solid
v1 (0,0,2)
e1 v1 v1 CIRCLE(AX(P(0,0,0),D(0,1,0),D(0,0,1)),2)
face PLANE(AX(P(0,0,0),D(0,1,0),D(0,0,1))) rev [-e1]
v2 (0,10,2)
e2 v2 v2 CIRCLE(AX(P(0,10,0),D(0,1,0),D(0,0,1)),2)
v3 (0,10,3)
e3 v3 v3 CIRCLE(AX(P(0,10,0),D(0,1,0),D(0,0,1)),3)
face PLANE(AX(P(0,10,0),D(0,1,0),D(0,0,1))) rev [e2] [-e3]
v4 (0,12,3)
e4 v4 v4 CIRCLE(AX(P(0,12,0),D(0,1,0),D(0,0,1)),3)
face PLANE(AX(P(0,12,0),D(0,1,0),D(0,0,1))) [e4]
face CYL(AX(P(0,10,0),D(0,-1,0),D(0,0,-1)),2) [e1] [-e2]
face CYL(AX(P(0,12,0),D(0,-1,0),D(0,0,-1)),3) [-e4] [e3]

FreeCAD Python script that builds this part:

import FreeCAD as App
import Part
import Sketcher
from FreeCAD import Vector

doc = App.newDocument("Part")
params = doc.addObject("Spreadsheet::Sheet", "Params")
for row, (alias, value) in enumerate([
    ("sketch1_diameter", "4 mm"),
    ("pad1_length", "10 mm"),
    ("sketch2_diameter", "6 mm"),
    ("pad2_length", "2 mm"),
], start=1):
    params.set(f"A{row}", alias)
    params.set(f"B{row}", "=" + value)
    params.setAlias(f"B{row}", alias)

body = doc.addObject("PartDesign::Body", "Body")

# Sketch on XZ plane
sketch1 = doc.addObject("Sketcher::SketchObject", "Sketch")
body.addObject(sketch1)
sketch1.AttachmentSupport = (doc.XZ_Plane, [""])
sketch1.MapMode = "FlatFace"
sketch1.addGeometry(Part.Circle(Vector(0, 0, 0), Vector(0, 0, 1), 2), False)
sketch1.addConstraint(Sketcher.Constraint("Coincident", 0, 3, -1, 1))
sketch1.addConstraint(Sketcher.Constraint("Diameter", 0, 4.0))
sketch1.setExpression("Constraints[1]", "Params.sketch1_diameter")
pad1 = doc.addObject("PartDesign::Pad", "Pad")
body.addObject(pad1)
pad1.Profile = sketch1
pad1.setExpression("Length", "Params.pad1_length")
pad1.Reversed = True

# Sketch on XZ plane
sketch2 = doc.addObject("Sketcher::SketchObject", "Sketch001")
body.addObject(sketch2)
sketch2.AttachmentSupport = (doc.XZ_Plane, [""])
sketch2.MapMode = "FlatFace"
sketch2.AttachmentOffset = App.Placement(Vector(0, 0, -10), App.Rotation())
sketch2.addGeometry(Part.Circle(Vector(0, 0, 0), Vector(0, 0, 1), 3), False)
sketch2.addConstraint(Sketcher.Constraint("Coincident", 0, 3, -1, 1))
sketch2.addConstraint(Sketcher.Constraint("Diameter", 0, 6.0))
sketch2.setExpression("Constraints[1]", "Params.sketch2_diameter")
pad2 = doc.addObject("PartDesign::Pad", "Pad001")
body.addObject(pad2)
pad2.Profile = sketch2
pad2.setExpression("Length", "Params.pad2_length")
pad2.Reversed = True

doc.recompute()
